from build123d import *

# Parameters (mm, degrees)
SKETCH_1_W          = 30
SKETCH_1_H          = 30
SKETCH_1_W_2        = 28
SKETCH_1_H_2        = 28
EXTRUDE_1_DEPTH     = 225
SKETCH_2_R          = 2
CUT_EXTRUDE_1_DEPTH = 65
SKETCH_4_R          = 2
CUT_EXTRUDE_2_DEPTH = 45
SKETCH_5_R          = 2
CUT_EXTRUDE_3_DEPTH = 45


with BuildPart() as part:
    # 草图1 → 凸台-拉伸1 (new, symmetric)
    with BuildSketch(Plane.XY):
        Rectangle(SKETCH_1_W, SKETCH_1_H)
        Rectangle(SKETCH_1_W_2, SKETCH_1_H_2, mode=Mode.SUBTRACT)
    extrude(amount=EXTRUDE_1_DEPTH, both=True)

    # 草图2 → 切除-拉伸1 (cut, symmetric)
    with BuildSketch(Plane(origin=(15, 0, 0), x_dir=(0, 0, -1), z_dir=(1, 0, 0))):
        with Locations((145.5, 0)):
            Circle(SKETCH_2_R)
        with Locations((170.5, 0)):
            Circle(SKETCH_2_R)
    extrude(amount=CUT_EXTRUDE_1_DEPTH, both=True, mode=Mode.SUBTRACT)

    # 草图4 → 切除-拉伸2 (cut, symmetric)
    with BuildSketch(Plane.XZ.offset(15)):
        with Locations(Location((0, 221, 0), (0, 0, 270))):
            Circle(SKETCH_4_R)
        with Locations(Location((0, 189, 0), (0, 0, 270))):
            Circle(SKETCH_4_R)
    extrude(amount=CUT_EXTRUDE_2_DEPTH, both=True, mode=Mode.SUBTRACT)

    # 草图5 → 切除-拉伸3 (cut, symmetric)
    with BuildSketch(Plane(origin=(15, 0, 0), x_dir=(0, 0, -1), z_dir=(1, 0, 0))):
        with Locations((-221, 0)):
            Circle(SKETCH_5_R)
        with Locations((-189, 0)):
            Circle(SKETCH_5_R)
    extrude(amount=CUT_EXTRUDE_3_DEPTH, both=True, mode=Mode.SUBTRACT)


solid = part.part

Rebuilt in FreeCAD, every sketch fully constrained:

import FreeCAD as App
import Part
import Sketcher

V = App.Vector


def add_polygon(sketch, points):
    """Adds a closed chain of lines whose ends are joined by coincident constraints."""
    first, n = sketch.GeometryCount, len(points)
    for a, b in zip(points, points[1:] + points[:1]):
        sketch.addGeometry(Part.LineSegment(App.Vector(*a, 0), App.Vector(*b, 0)), False)
    for i in range(n):
        sketch.addConstraint(Sketcher.Constraint("Coincident", first + i, 2, first + (i + 1) % n, 1))

doc = App.newDocument("Part")
body = doc.addObject("PartDesign::Body", "Body")

# Sketch on XY plane
sketch1 = body.newObject("Sketcher::SketchObject", "Sketch")
sketch1.AttachmentSupport = (doc.getObject("XY_Plane"), [""])
sketch1.MapMode = "FlatFace"
add_polygon(sketch1, [(-15, 15), (-15, -15), (15, -15), (15, 15)])  # lines 0-3
add_polygon(sketch1, [(14, -14), (-14, -14), (-14, 14), (14, 14)])  # lines 4-7
sketch1.addConstraint([
    Sketcher.Constraint("Vertical", 0),
    Sketcher.Constraint("Horizontal", 1),
    Sketcher.Constraint("Vertical", 2),
    Sketcher.Constraint("Horizontal", 3),
    Sketcher.Constraint("Horizontal", 4),
    Sketcher.Constraint("Vertical", 5),
    Sketcher.Constraint("Horizontal", 6),
    Sketcher.Constraint("Vertical", 7),
    Sketcher.Constraint("Symmetric", 0, 2, 2, 2, -1, 1),
    Sketcher.Constraint("Symmetric", 4, 2, 6, 2, -1, 1),
    Sketcher.Constraint("Equal", 3, 0),
    Sketcher.Constraint("Equal", 6, 5),
    Sketcher.Constraint("DistanceX", 1, 1, 1, 2, 30.0),
    Sketcher.Constraint("DistanceX", 4, 2, 4, 1, 28.0),
])
pad1 = body.newObject("PartDesign::Pad", "Pad")
pad1.Profile = sketch1
pad1.Length = 450
pad1.Midplane = True

# Sketch on YZ plane
sketch2 = body.newObject("Sketcher::SketchObject", "Sketch001")
sketch2.AttachmentSupport = (doc.getObject("YZ_Plane"), [""])
sketch2.MapMode = "FlatFace"
sketch2.AttachmentOffset = App.Placement(V(0, 0, 15), App.Rotation())
sketch2.addGeometry([
    Part.Circle(V(0, -145.5, 0), V(0, 0, 1), 2),
    Part.Circle(V(0, -170.5, 0), V(0, 0, 1), 2),
], False)
sketch2.addConstraint([
    Sketcher.Constraint("Equal", 0, 1),
    Sketcher.Constraint("PointOnObject", 0, 3, -2),
    Sketcher.Constraint("PointOnObject", 1, 3, -2),
    Sketcher.Constraint("Diameter", 0, 4.0),
    Sketcher.Constraint("DistanceY", 1, 3, 0, 3, 25.0),
    Sketcher.Constraint("DistanceY", 0, 3, -1, 1, 145.5),
])
pocket1 = body.newObject("PartDesign::Pocket", "Pocket")
pocket1.Profile = sketch2
pocket1.Length = 130
pocket1.Midplane = True

# Sketch on XZ plane
sketch3 = body.newObject("Sketcher::SketchObject", "Sketch002")
sketch3.AttachmentSupport = (doc.getObject("XZ_Plane"), [""])
sketch3.MapMode = "FlatFace"
sketch3.AttachmentOffset = App.Placement(V(0, 0, 15), App.Rotation())
sketch3.addGeometry([
    Part.Circle(V(0, 221, 0), V(0, 0, 1), 2),
    Part.Circle(V(0, 189, 0), V(0, 0, 1), 2),
], False)
sketch3.addConstraint([
    Sketcher.Constraint("Equal", 0, 1),
    Sketcher.Constraint("PointOnObject", 0, 3, -2),
    Sketcher.Constraint("PointOnObject", 1, 3, -2),
    Sketcher.Constraint("Diameter", 0, 4.0),
    Sketcher.Constraint("DistanceY", -1, 1, 0, 3, 221.0),
    Sketcher.Constraint("DistanceY", -1, 1, 1, 3, 189.0),
])
pocket2 = body.newObject("PartDesign::Pocket", "Pocket001")
pocket2.Profile = sketch3
pocket2.Length = 90
pocket2.Midplane = True

# Sketch on YZ plane
sketch4 = body.newObject("Sketcher::SketchObject", "Sketch003")
sketch4.AttachmentSupport = (doc.getObject("YZ_Plane"), [""])
sketch4.MapMode = "FlatFace"
sketch4.AttachmentOffset = App.Placement(V(0, 0, 15), App.Rotation())
sketch4.addGeometry([
    Part.Circle(V(0, 221, 0), V(0, 0, 1), 2),
    Part.Circle(V(0, 189, 0), V(0, 0, 1), 2),
], False)
sketch4.addConstraint([
    Sketcher.Constraint("Equal", 0, 1),
    Sketcher.Constraint("PointOnObject", 0, 3, -2),
    Sketcher.Constraint("PointOnObject", 1, 3, -2),
    Sketcher.Constraint("Diameter", 0, 4.0),
    Sketcher.Constraint("DistanceY", -1, 1, 0, 3, 221.0),
    Sketcher.Constraint("DistanceY", -1, 1, 1, 3, 189.0),
])
pocket3 = body.newObject("PartDesign::Pocket", "Pocket002")
pocket3.Profile = sketch4
pocket3.Length = 90
pocket3.Midplane = True

doc.recompute()
